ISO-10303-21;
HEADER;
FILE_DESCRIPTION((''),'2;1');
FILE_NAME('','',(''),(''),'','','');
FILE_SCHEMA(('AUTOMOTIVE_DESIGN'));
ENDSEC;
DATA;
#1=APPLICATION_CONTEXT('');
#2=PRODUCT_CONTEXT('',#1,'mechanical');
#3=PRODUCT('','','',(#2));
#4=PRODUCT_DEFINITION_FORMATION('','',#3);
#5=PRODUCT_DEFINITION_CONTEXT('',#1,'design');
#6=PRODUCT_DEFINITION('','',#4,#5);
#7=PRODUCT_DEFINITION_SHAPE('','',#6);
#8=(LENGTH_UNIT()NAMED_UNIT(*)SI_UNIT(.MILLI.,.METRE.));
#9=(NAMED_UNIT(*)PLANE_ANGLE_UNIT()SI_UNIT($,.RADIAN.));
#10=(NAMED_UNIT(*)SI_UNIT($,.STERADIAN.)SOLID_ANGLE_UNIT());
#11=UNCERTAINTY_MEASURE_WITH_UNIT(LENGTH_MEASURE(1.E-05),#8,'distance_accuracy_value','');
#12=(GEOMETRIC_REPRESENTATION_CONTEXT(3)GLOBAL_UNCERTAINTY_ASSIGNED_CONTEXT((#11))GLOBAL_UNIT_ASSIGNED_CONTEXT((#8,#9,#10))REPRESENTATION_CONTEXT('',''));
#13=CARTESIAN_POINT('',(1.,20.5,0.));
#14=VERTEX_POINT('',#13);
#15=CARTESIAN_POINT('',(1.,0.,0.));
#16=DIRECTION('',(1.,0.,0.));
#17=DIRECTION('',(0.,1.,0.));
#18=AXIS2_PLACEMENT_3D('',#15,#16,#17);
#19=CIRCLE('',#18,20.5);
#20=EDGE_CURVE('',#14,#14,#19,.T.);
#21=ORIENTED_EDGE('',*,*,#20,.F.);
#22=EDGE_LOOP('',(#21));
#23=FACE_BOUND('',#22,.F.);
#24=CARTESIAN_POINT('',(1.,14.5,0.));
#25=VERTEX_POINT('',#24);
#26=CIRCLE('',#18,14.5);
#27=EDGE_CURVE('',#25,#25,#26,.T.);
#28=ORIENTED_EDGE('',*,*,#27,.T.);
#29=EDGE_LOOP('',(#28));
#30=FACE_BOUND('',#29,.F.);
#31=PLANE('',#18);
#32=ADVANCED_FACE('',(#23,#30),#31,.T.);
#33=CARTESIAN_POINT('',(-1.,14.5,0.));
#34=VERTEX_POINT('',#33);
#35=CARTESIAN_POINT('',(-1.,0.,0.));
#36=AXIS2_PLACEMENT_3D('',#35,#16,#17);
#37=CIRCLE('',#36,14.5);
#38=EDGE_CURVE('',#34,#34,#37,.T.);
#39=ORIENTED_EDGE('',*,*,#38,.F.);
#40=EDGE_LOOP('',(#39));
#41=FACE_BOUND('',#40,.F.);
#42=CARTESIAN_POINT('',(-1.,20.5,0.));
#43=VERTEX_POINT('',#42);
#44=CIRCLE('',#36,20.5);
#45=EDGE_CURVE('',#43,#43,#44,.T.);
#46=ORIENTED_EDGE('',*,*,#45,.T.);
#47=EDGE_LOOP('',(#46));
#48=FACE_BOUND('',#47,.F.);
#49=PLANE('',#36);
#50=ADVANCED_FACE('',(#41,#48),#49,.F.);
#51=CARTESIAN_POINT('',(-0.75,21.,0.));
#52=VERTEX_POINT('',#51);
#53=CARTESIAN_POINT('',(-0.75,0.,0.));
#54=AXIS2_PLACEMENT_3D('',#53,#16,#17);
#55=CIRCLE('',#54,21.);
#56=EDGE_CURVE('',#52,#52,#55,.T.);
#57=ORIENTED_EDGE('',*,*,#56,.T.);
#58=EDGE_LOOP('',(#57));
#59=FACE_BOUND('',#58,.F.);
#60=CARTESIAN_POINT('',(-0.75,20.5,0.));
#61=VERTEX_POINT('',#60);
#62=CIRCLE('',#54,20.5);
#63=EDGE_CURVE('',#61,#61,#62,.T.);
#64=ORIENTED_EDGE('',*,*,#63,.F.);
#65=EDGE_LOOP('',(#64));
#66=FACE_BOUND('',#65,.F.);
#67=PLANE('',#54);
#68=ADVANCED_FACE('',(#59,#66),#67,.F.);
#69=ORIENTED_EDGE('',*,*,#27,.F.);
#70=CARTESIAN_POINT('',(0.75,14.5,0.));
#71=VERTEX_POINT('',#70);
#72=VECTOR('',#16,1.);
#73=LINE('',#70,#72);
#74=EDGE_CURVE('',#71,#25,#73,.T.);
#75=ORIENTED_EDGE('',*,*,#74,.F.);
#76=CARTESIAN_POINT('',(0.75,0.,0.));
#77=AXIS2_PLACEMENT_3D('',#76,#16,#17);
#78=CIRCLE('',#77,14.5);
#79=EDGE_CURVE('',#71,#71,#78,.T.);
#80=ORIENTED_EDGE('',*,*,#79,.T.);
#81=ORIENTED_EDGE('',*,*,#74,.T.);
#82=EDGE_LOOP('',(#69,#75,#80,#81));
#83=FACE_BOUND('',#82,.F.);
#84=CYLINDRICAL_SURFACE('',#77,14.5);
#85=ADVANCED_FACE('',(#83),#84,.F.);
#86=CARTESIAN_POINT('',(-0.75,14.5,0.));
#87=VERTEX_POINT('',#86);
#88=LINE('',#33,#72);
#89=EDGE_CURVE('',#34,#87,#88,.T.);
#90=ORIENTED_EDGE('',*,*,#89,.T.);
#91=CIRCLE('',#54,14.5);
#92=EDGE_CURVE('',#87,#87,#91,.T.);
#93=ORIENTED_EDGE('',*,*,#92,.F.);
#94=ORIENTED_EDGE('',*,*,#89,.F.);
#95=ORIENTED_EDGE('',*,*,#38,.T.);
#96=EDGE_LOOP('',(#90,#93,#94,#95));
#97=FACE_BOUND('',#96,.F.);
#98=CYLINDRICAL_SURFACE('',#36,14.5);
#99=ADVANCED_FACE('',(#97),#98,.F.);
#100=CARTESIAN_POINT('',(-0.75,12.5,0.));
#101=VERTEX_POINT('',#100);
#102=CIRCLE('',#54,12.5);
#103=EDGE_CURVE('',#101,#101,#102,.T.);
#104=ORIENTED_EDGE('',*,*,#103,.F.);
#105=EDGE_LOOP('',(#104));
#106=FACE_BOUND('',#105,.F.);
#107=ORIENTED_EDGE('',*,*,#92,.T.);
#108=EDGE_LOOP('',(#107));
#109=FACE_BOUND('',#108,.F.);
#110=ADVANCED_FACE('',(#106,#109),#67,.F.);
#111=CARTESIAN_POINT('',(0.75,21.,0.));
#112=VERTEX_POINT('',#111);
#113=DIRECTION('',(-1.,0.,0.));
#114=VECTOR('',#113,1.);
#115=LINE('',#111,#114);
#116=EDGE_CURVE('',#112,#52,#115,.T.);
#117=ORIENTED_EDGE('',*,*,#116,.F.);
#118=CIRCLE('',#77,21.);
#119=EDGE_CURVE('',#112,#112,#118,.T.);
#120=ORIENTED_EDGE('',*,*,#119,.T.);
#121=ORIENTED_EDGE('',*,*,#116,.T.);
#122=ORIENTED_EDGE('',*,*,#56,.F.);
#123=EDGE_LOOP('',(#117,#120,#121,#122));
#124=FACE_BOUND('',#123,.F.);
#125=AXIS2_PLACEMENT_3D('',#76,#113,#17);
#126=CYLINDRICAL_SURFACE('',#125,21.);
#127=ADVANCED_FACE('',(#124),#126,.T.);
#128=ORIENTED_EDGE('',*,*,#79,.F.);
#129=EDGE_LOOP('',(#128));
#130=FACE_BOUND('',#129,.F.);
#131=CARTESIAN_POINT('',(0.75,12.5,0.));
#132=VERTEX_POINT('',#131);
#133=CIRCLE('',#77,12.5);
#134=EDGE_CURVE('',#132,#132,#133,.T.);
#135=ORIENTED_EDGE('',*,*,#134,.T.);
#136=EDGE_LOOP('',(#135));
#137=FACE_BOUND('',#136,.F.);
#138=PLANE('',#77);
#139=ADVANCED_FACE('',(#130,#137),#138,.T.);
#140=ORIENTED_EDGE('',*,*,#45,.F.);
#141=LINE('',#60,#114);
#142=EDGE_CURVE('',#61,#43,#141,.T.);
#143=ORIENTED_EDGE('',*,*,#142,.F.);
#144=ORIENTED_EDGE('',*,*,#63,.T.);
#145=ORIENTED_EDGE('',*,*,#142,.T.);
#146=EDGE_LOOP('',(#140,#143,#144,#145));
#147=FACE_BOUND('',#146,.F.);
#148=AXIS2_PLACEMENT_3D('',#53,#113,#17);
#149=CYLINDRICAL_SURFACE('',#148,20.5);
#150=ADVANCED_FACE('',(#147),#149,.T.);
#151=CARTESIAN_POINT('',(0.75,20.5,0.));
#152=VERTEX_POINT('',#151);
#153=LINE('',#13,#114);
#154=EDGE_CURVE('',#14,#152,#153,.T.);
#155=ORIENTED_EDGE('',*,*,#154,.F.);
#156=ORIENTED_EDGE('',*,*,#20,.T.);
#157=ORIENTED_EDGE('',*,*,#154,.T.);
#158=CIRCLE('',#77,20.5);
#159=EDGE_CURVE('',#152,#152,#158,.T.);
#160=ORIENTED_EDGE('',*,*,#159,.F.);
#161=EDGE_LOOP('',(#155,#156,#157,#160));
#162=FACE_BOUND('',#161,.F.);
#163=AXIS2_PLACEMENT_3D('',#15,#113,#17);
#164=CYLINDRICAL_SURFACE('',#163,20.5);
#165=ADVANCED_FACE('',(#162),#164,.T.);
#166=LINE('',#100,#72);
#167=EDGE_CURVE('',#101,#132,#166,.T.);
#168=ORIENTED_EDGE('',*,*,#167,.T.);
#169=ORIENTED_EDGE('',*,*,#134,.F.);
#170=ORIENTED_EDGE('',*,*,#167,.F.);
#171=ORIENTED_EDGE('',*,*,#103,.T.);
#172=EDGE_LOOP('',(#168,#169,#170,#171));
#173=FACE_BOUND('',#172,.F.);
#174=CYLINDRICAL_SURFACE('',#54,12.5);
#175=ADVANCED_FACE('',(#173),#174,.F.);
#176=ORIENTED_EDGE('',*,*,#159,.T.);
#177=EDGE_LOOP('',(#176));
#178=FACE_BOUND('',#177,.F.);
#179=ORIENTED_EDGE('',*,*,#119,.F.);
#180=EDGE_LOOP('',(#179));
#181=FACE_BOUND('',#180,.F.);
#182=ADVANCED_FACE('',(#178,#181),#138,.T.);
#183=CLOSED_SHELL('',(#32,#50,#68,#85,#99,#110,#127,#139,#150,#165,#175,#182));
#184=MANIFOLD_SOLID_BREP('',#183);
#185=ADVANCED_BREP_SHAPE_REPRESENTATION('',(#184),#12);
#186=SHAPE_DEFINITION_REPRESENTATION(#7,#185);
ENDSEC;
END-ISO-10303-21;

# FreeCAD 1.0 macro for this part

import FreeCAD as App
import Part
import Sketcher

V = App.Vector
Q = App.Units.Quantity

doc = App.newDocument("Part")
params = doc.addObject("Spreadsheet::Sheet", "Params")
for row, (alias, value) in enumerate([
    ("sketch1_height", "6 mm"),
    ("sketch1_height2", "2 mm"),
    ("sketch1_width", "1.5 mm"),
    ("sketch1_height3", "0.5 mm"),
    ("revolution_angle", "360 deg"),
], start=1):
    params.set(f"A{row}", alias)
    params.set(f"B{row}", "=" + value)
    params.setAlias(f"B{row}", alias)

body = doc.addObject("PartDesign::Body", "Body")

# Sketch on XY plane
sketch1 = body.newObject("Sketcher::SketchObject", "Sketch")
sketch1.AttachmentSupport = (doc.getObject("XY_Plane"), [""])
sketch1.MapMode = "FlatFace"
sketch1.addGeometry(Part.LineSegment(V(-0.75, 20.5, 0), V(-1, 20.5, 0)), False)
sketch1.addGeometry(Part.LineSegment(V(-1, 20.5, 0), V(-1, 14.5, 0)), False)
sketch1.addGeometry(Part.LineSegment(V(-1, 14.5, 0), V(-0.75, 14.5, 0)), False)
sketch1.addGeometry(Part.LineSegment(V(-0.75, 14.5, 0), V(-0.75, 12.5, 0)), False)
sketch1.addGeometry(Part.LineSegment(V(-0.75, 12.5, 0), V(0.75, 12.5, 0)), False)
sketch1.addGeometry(Part.LineSegment(V(0.75, 12.5, 0), V(0.75, 14.5, 0)), False)
sketch1.addGeometry(Part.LineSegment(V(0.75, 14.5, 0), V(1, 14.5, 0)), False)
sketch1.addGeometry(Part.LineSegment(V(1, 14.5, 0), V(1, 20.5, 0)), False)
sketch1.addGeometry(Part.LineSegment(V(1, 20.5, 0), V(0.75, 20.5, 0)), False)
sketch1.addGeometry(Part.LineSegment(V(0.75, 20.5, 0), V(0.75, 21, 0)), False)
sketch1.addGeometry(Part.LineSegment(V(0.75, 21, 0), V(-0.75, 21, 0)), False)
sketch1.addGeometry(Part.LineSegment(V(-0.75, 21, 0), V(-0.75, 20.5, 0)), False)
sketch1.addConstraint(Sketcher.Constraint("Coincident", 0, 2, 1, 1))
sketch1.addConstraint(Sketcher.Constraint("Coincident", 1, 2, 2, 1))
sketch1.addConstraint(Sketcher.Constraint("Coincident", 2, 2, 3, 1))
sketch1.addConstraint(Sketcher.Constraint("Coincident", 3, 2, 4, 1))
sketch1.addConstraint(Sketcher.Constraint("Coincident", 4, 2, 5, 1))
sketch1.addConstraint(Sketcher.Constraint("Coincident", 5, 2, 6, 1))
sketch1.addConstraint(Sketcher.Constraint("Coincident", 6, 2, 7, 1))
sketch1.addConstraint(Sketcher.Constraint("Coincident", 7, 2, 8, 1))
sketch1.addConstraint(Sketcher.Constraint("Coincident", 8, 2, 9, 1))
sketch1.addConstraint(Sketcher.Constraint("Coincident", 9, 2, 10, 1))
sketch1.addConstraint(Sketcher.Constraint("Coincident", 10, 2, 11, 1))
sketch1.addConstraint(Sketcher.Constraint("Coincident", 11, 2, 0, 1))
sketch1.addConstraint(Sketcher.Constraint("Horizontal", 0))
sketch1.addConstraint(Sketcher.Constraint("Vertical", 1))
sketch1.addConstraint(Sketcher.Constraint("Horizontal", 2))
sketch1.addConstraint(Sketcher.Constraint("Vertical", 3))
sketch1.addConstraint(Sketcher.Constraint("Horizontal", 4))
sketch1.addConstraint(Sketcher.Constraint("Vertical", 5))
sketch1.addConstraint(Sketcher.Constraint("Horizontal", 6))
sketch1.addConstraint(Sketcher.Constraint("Vertical", 7))
sketch1.addConstraint(Sketcher.Constraint("Horizontal", 8))
sketch1.addConstraint(Sketcher.Constraint("Vertical", 9))
sketch1.addConstraint(Sketcher.Constraint("Horizontal", 10))
sketch1.addConstraint(Sketcher.Constraint("Vertical", 11))
sketch1.addConstraint(Sketcher.Constraint("Symmetric", 2, 2, 5, 2, -2))
sketch1.addConstraint(Sketcher.Constraint("Symmetric", 0, 2, 7, 2, -2))
sketch1.addConstraint(Sketcher.Constraint("Vertical", 5, 2, 8, 2))
sketch1.addConstraint(Sketcher.Constraint("Vertical", 3, 2, 10, 2))
sketch1.addConstraint(Sketcher.Constraint("DistanceY", 1, 2, 1, 1, Q("6 mm")))
sketch1.addConstraint(Sketcher.Constraint("DistanceY", 3, 2, 3, 1, Q("2 mm")))
sketch1.addConstraint(Sketcher.Constraint("DistanceX", 4, 1, 4, 2, Q("1.5 mm")))
sketch1.addConstraint(Sketcher.Constraint("DistanceY", 9, 1, 9, 2, Q("0.5 mm")))
sketch1.addConstraint(Sketcher.Constraint("DistanceX", 0, 2, -1, 1, Q("1 mm")))
sketch1.addConstraint(Sketcher.Constraint("DistanceY", -1, 1, 9, 2, Q("21 mm")))
sketch1.setExpression("Constraints[28]", "Params.sketch1_height")
sketch1.setExpression("Constraints[29]", "Params.sketch1_height2")
sketch1.setExpression("Constraints[30]", "Params.sketch1_width")
sketch1.setExpression("Constraints[31]", "Params.sketch1_height3")
revolution = body.newObject("PartDesign::Revolution", "Revolution")
revolution.Profile = sketch1
revolution.ReferenceAxis = (sketch1, ["H_Axis"])
revolution.setExpression("Angle", "Params.revolution_angle")

doc.recompute()
